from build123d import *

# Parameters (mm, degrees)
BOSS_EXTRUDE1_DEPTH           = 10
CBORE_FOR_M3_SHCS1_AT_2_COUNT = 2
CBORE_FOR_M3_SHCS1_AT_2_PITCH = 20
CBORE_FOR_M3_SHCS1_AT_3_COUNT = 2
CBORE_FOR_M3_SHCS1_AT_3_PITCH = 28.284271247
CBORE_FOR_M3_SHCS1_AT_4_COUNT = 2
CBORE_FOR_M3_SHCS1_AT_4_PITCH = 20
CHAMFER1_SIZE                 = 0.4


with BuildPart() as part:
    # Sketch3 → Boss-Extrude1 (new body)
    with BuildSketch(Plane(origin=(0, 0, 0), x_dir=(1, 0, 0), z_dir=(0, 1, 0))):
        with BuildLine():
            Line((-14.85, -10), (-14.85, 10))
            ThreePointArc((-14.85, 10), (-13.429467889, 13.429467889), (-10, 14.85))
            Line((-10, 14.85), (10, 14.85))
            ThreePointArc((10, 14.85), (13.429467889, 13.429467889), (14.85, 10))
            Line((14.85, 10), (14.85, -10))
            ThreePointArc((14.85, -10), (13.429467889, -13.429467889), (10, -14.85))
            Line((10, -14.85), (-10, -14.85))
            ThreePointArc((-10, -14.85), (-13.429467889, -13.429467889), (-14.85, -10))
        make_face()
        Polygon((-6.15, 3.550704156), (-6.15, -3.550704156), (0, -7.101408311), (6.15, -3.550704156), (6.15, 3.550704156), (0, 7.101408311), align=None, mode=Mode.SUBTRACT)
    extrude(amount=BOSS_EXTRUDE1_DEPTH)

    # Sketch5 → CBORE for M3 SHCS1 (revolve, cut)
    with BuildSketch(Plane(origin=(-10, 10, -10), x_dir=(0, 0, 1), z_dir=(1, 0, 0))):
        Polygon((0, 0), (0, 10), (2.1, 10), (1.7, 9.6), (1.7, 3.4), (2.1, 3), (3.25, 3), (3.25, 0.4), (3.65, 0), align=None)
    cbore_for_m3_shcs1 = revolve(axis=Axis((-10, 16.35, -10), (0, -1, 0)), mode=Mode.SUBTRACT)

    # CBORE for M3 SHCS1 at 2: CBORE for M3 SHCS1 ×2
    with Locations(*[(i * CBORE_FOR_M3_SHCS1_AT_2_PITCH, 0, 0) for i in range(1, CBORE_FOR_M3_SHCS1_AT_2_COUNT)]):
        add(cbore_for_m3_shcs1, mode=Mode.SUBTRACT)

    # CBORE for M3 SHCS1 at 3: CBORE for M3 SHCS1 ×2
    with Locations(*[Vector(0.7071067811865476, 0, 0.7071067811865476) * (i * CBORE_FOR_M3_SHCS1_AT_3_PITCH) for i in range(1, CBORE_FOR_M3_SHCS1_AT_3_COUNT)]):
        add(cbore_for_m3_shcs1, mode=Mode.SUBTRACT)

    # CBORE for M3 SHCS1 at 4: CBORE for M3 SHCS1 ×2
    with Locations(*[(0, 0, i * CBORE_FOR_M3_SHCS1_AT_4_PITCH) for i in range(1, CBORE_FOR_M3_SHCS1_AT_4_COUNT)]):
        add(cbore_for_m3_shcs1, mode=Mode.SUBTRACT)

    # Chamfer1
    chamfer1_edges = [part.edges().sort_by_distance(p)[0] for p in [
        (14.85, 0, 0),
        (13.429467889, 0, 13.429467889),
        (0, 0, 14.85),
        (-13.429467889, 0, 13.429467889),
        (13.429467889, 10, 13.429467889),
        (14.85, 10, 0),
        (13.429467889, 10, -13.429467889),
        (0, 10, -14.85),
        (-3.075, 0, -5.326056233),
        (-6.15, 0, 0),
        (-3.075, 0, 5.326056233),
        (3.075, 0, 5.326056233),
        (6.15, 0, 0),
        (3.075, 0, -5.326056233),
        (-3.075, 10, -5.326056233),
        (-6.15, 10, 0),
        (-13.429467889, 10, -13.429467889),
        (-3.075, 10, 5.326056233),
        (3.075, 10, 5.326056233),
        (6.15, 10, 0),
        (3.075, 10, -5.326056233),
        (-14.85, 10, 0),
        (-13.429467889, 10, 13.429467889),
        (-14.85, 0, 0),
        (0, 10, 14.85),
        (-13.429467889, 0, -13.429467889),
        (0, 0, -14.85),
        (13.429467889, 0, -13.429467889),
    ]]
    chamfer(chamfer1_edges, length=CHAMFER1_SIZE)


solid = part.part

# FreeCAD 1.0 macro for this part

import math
import FreeCAD as App
import Part
import Sketcher
Q = App.Units.Quantity


def edges_at(feature, points):
    """Names of the edges that pass closest to the given points."""
    edges = feature.Shape.Edges
    near = lambda p: min(range(len(edges)), key=lambda i: edges[i].distToShape(Part.Vertex(*p))[0])
    return sorted({f"Edge{near(p) + 1}" for p in points})

doc = App.newDocument("Part")
body = doc.addObject("PartDesign::Body", "Body")

sketch1 = doc.addObject("Sketcher::SketchObject", "Sketch")
body.addObject(sketch1)
sketch1.AttachmentSupport = (doc.XZ_Plane, [""])
sketch1.MapMode = "FlatFace"
sketch1.addGeometry(Part.LineSegment(App.Vector(-14.8, -10, 0), App.Vector(-14.8, 10, 0)), False)
sketch1.addGeometry(Part.ArcOfCircle(Part.Circle(App.Vector(-10, 10, 0), App.Vector(0, 0, 1), 4.8), math.radians(90), math.radians(180)), False)
sketch1.addGeometry(Part.LineSegment(App.Vector(-10, 14.8, 0), App.Vector(10, 14.8, 0)), False)
sketch1.addGeometry(Part.ArcOfCircle(Part.Circle(App.Vector(10, 10, 0), App.Vector(0, 0, 1), 4.8), math.radians(0), math.radians(90)), False)
sketch1.addGeometry(Part.LineSegment(App.Vector(14.8, 10, 0), App.Vector(14.8, -10, 0)), False)
sketch1.addGeometry(Part.ArcOfCircle(Part.Circle(App.Vector(10, -10, 0), App.Vector(0, 0, 1), 4.8), math.radians(-90), math.radians(0)), False)
sketch1.addGeometry(Part.LineSegment(App.Vector(10, -14.8, 0), App.Vector(-10, -14.8, 0)), False)
sketch1.addGeometry(Part.ArcOfCircle(Part.Circle(App.Vector(-10, -10, 0), App.Vector(0, 0, 1), 4.8), math.radians(180), math.radians(270)), False)
sketch1.addGeometry(Part.LineSegment(App.Vector(-6.2, -3.6, 0), App.Vector(0, -7.1, 0)), False)
sketch1.addGeometry(Part.LineSegment(App.Vector(0, -7.1, 0), App.Vector(6.2, -3.6, 0)), False)
sketch1.addGeometry(Part.LineSegment(App.Vector(6.2, -3.6, 0), App.Vector(6.2, 3.6, 0)), False)
sketch1.addGeometry(Part.LineSegment(App.Vector(6.2, 3.6, 0), App.Vector(0, 7.1, 0)), False)
sketch1.addGeometry(Part.LineSegment(App.Vector(0, 7.1, 0), App.Vector(-6.2, 3.6, 0)), False)
sketch1.addGeometry(Part.LineSegment(App.Vector(-6.2, 3.6, 0), App.Vector(-6.2, -3.6, 0)), False)
sketch1.addConstraint(Sketcher.Constraint("Tangent", 0, 2, 1, 2))
sketch1.addConstraint(Sketcher.Constraint("Tangent", 1, 1, 2, 1))
sketch1.addConstraint(Sketcher.Constraint("Tangent", 2, 2, 3, 2))
sketch1.addConstraint(Sketcher.Constraint("Tangent", 3, 1, 4, 1))
sketch1.addConstraint(Sketcher.Constraint("Tangent", 4, 2, 5, 2))
sketch1.addConstraint(Sketcher.Constraint("Tangent", 5, 1, 6, 1))
sketch1.addConstraint(Sketcher.Constraint("Tangent", 6, 2, 7, 2))
sketch1.addConstraint(Sketcher.Constraint("Tangent", 7, 1, 0, 1))
sketch1.addConstraint(Sketcher.Constraint("Coincident", 8, 2, 9, 1))
sketch1.addConstraint(Sketcher.Constraint("Coincident", 9, 2, 10, 1))
sketch1.addConstraint(Sketcher.Constraint("Coincident", 10, 2, 11, 1))
sketch1.addConstraint(Sketcher.Constraint("Coincident", 11, 2, 12, 1))
sketch1.addConstraint(Sketcher.Constraint("Coincident", 12, 2, 13, 1))
sketch1.addConstraint(Sketcher.Constraint("Coincident", 13, 2, 8, 1))
sketch1.addConstraint(Sketcher.Constraint("Vertical", 0))
sketch1.addConstraint(Sketcher.Constraint("Horizontal", 2))
sketch1.addConstraint(Sketcher.Constraint("Vertical", 4))
sketch1.addConstraint(Sketcher.Constraint("Horizontal", 6))
sketch1.addConstraint(Sketcher.Constraint("Vertical", 10))
sketch1.addConstraint(Sketcher.Constraint("Vertical", 13))
sketch1.addConstraint(Sketcher.Constraint("Equal", 1, 3))
sketch1.addConstraint(Sketcher.Constraint("Equal", 3, 5))
sketch1.addConstraint(Sketcher.Constraint("Equal", 5, 7))
sketch1.addConstraint(Sketcher.Constraint("Symmetric", 1, 3, 5, 3, -1, 1))
sketch1.addConstraint(Sketcher.Constraint("Symmetric", 8, 2, 11, 2, -1, 1))
sketch1.addConstraint(Sketcher.Constraint("Symmetric", 9, 2, 12, 2, -1, 1))
sketch1.addConstraint(Sketcher.Constraint("PointOnObject", 8, 2, -2))
sketch1.addConstraint(Sketcher.Constraint("Parallel", 8, 11))
sketch1.addConstraint(Sketcher.Constraint("Horizontal", 10, 2, 12, 2))
sketch1.addConstraint(Sketcher.Constraint("Equal", 6, 0))
sketch1.addConstraint(Sketcher.Constraint("DistanceX", 2, 1, 2, 2, 20.0))
sketch1.addConstraint(Sketcher.Constraint("Angle", 8, Q("-30 deg")))
sketch1.addConstraint(Sketcher.Constraint("Radius", 1, 4.85))
sketch1.addConstraint(Sketcher.Constraint("DistanceX", 9, 2, 4, 2, 8.7))
sketch1.addConstraint(Sketcher.Constraint("DistanceY", 10, 1, 10, 2, 7.101408))
pad1 = doc.addObject("PartDesign::Pad", "Pad")
body.addObject(pad1)
pad1.Profile = sketch1
pad1.Length = 10
pad1.Reversed = True

sketch2 = doc.addObject("Sketcher::SketchObject", "Sketch001")
body.addObject(sketch2)
sketch2.AttachmentSupport = (doc.YZ_Plane, [""])
sketch2.MapMode = "FlatFace"
sketch2.AttachmentOffset = App.Placement(App.Vector(0, 0, -10), App.Rotation())
sketch2.addGeometry(Part.LineSegment(App.Vector(0, -10, 0), App.Vector(10, -10, 0)), False)
sketch2.addGeometry(Part.LineSegment(App.Vector(10, -10, 0), App.Vector(10, -6.3, 0)), False)
sketch2.addGeometry(Part.LineSegment(App.Vector(10, -6.3, 0), App.Vector(9.6, -6.8, 0)), False)
sketch2.addGeometry(Part.LineSegment(App.Vector(9.6, -6.8, 0), App.Vector(7, -6.8, 0)), False)
sketch2.addGeometry(Part.LineSegment(App.Vector(7, -6.8, 0), App.Vector(7, -7.9, 0)), False)
sketch2.addGeometry(Part.LineSegment(App.Vector(7, -7.9, 0), App.Vector(6.6, -8.3, 0)), False)
sketch2.addGeometry(Part.LineSegment(App.Vector(6.6, -8.3, 0), App.Vector(0.4, -8.3, 0)), False)
sketch2.addGeometry(Part.LineSegment(App.Vector(0.4, -8.3, 0), App.Vector(0, -7.9, 0)), False)
sketch2.addGeometry(Part.LineSegment(App.Vector(0, -7.9, 0), App.Vector(0, -10, 0)), False)
sketch2.addGeometry(Part.LineSegment(App.Vector(10, -10, 0), App.Vector(0, -10, 0)), True)
sketch2.addConstraint(Sketcher.Constraint("Coincident", 0, 2, 1, 1))
sketch2.addConstraint(Sketcher.Constraint("Coincident", 1, 2, 2, 1))
sketch2.addConstraint(Sketcher.Constraint("Coincident", 2, 2, 3, 1))
sketch2.addConstraint(Sketcher.Constraint("Coincident", 3, 2, 4, 1))
sketch2.addConstraint(Sketcher.Constraint("Coincident", 4, 2, 5, 1))
sketch2.addConstraint(Sketcher.Constraint("Coincident", 5, 2, 6, 1))
sketch2.addConstraint(Sketcher.Constraint("Coincident", 6, 2, 7, 1))
sketch2.addConstraint(Sketcher.Constraint("Coincident", 7, 2, 8, 1))
sketch2.addConstraint(Sketcher.Constraint("Coincident", 8, 2, 0, 1))
sketch2.addConstraint(Sketcher.Constraint("Horizontal", 0))
sketch2.addConstraint(Sketcher.Constraint("Vertical", 1))
sketch2.addConstraint(Sketcher.Constraint("Horizontal", 3))
sketch2.addConstraint(Sketcher.Constraint("Vertical", 4))
sketch2.addConstraint(Sketcher.Constraint("Horizontal", 6))
sketch2.addConstraint(Sketcher.Constraint("Vertical", 8))
sketch2.addConstraint(Sketcher.Constraint("Horizontal", 9))
sketch2.addConstraint(Sketcher.Constraint("Coincident", 9, 1, 0, 2))
sketch2.addConstraint(Sketcher.Constraint("PointOnObject", 7, 2, -2))
sketch2.addConstraint(Sketcher.Constraint("PointOnObject", 9, 2, -2))
sketch2.addConstraint(Sketcher.Constraint("Parallel", 2, 5))
sketch2.addConstraint(Sketcher.Constraint("Perpendicular", 5, 7))
sketch2.addConstraint(Sketcher.Constraint("Horizontal", 4, 2, 7, 2))
sketch2.addConstraint(Sketcher.Constraint("Equal", 2, 5))
sketch2.addConstraint(Sketcher.Constraint("Equal", 5, 7))
sketch2.addConstraint(Sketcher.Constraint("DistanceX", 0, 1, 0, 2, 10.0))
sketch2.addConstraint(Sketcher.Constraint("DistanceX", 3, 2, 3, 1, 2.6))
sketch2.addConstraint(Sketcher.Constraint("DistanceX", 6, 2, 6, 1, 6.2))
sketch2.addConstraint(Sketcher.Constraint("DistanceY", 8, 2, 8, 1, 2.1))
sketch2.addConstraint(Sketcher.Constraint("DistanceY", 0, 2, -1, 1, 10.0))
sketch2.addConstraint(Sketcher.Constraint("DistanceY", 1, 1, 1, 2, 3.65))
groove = doc.addObject("PartDesign::Groove", "Groove")
body.addObject(groove)
groove.Profile = sketch2
groove.ReferenceAxis = (sketch2, ["Axis0"])
groove.Angle = 360
doc.recompute()

linearpattern = doc.addObject("PartDesign::LinearPattern", "LinearPattern")
body.addObject(linearpattern)
linearpattern.Originals = [groove]
linearpattern.Direction = (doc.X_Axis, [""])
linearpattern.Mode = "offset"
linearpattern.Offset = 20
linearpattern.Occurrences = 2
body.Tip = linearpattern
doc.recompute()

datumline = doc.addObject("PartDesign::Line", "DatumLine")
body.addObject(datumline)
datumline.Placement = App.Placement(App.Vector(0, 0, 0), App.Rotation(App.Vector(0, 0, 1), App.Vector(0.707106781, 0, 0.707106781)))
linearpattern2 = doc.addObject("PartDesign::LinearPattern", "LinearPattern001")
body.addObject(linearpattern2)
linearpattern2.Originals = [groove]
linearpattern2.Direction = (datumline, [""])
linearpattern2.Mode = "offset"
linearpattern2.Offset = 28.284271
linearpattern2.Occurrences = 2
body.Tip = linearpattern2
doc.recompute()

linearpattern3 = doc.addObject("PartDesign::LinearPattern", "LinearPattern002")
body.addObject(linearpattern3)
linearpattern3.Originals = [groove]
linearpattern3.Direction = (doc.Z_Axis, [""])
linearpattern3.Mode = "offset"
linearpattern3.Offset = 20
linearpattern3.Occurrences = 2
body.Tip = linearpattern3
doc.recompute()

chamfer = doc.addObject("PartDesign::Chamfer", "Chamfer")
body.addObject(chamfer)
chamfer.Base = (linearpattern3, edges_at(linearpattern3, [
    (14.85, 0, 0),
    (13.429, 0, 13.429),
    (0, 0, 14.85),
    (-13.429, 0, 13.429),
    (13.429, 10, 13.429),
    (14.85, 10, 0),
    (13.429, 10, -13.429),
    (0, 10, -14.85),
    (-3.075, 0, -5.326),
    (-6.15, 0, 0),
    (-3.075, 0, 5.326),
    (3.075, 0, 5.326),
    (6.15, 0, 0),
    (3.075, 0, -5.326),
    (-3.075, 10, -5.326),
    (-6.15, 10, 0),
    (-13.429, 10, -13.429),
    (-3.075, 10, 5.326),
    (3.075, 10, 5.326),
    (6.15, 10, 0),
    (3.075, 10, -5.326),
    (-14.85, 10, 0),
    (-13.429, 10, 13.429),
    (-14.85, 0, 0),
    (0, 10, 14.85),
    (-13.429, 0, -13.429),
    (0, 0, -14.85),
    (13.429, 0, -13.429),
]))
chamfer.Size = 0.4

doc.recompute()
